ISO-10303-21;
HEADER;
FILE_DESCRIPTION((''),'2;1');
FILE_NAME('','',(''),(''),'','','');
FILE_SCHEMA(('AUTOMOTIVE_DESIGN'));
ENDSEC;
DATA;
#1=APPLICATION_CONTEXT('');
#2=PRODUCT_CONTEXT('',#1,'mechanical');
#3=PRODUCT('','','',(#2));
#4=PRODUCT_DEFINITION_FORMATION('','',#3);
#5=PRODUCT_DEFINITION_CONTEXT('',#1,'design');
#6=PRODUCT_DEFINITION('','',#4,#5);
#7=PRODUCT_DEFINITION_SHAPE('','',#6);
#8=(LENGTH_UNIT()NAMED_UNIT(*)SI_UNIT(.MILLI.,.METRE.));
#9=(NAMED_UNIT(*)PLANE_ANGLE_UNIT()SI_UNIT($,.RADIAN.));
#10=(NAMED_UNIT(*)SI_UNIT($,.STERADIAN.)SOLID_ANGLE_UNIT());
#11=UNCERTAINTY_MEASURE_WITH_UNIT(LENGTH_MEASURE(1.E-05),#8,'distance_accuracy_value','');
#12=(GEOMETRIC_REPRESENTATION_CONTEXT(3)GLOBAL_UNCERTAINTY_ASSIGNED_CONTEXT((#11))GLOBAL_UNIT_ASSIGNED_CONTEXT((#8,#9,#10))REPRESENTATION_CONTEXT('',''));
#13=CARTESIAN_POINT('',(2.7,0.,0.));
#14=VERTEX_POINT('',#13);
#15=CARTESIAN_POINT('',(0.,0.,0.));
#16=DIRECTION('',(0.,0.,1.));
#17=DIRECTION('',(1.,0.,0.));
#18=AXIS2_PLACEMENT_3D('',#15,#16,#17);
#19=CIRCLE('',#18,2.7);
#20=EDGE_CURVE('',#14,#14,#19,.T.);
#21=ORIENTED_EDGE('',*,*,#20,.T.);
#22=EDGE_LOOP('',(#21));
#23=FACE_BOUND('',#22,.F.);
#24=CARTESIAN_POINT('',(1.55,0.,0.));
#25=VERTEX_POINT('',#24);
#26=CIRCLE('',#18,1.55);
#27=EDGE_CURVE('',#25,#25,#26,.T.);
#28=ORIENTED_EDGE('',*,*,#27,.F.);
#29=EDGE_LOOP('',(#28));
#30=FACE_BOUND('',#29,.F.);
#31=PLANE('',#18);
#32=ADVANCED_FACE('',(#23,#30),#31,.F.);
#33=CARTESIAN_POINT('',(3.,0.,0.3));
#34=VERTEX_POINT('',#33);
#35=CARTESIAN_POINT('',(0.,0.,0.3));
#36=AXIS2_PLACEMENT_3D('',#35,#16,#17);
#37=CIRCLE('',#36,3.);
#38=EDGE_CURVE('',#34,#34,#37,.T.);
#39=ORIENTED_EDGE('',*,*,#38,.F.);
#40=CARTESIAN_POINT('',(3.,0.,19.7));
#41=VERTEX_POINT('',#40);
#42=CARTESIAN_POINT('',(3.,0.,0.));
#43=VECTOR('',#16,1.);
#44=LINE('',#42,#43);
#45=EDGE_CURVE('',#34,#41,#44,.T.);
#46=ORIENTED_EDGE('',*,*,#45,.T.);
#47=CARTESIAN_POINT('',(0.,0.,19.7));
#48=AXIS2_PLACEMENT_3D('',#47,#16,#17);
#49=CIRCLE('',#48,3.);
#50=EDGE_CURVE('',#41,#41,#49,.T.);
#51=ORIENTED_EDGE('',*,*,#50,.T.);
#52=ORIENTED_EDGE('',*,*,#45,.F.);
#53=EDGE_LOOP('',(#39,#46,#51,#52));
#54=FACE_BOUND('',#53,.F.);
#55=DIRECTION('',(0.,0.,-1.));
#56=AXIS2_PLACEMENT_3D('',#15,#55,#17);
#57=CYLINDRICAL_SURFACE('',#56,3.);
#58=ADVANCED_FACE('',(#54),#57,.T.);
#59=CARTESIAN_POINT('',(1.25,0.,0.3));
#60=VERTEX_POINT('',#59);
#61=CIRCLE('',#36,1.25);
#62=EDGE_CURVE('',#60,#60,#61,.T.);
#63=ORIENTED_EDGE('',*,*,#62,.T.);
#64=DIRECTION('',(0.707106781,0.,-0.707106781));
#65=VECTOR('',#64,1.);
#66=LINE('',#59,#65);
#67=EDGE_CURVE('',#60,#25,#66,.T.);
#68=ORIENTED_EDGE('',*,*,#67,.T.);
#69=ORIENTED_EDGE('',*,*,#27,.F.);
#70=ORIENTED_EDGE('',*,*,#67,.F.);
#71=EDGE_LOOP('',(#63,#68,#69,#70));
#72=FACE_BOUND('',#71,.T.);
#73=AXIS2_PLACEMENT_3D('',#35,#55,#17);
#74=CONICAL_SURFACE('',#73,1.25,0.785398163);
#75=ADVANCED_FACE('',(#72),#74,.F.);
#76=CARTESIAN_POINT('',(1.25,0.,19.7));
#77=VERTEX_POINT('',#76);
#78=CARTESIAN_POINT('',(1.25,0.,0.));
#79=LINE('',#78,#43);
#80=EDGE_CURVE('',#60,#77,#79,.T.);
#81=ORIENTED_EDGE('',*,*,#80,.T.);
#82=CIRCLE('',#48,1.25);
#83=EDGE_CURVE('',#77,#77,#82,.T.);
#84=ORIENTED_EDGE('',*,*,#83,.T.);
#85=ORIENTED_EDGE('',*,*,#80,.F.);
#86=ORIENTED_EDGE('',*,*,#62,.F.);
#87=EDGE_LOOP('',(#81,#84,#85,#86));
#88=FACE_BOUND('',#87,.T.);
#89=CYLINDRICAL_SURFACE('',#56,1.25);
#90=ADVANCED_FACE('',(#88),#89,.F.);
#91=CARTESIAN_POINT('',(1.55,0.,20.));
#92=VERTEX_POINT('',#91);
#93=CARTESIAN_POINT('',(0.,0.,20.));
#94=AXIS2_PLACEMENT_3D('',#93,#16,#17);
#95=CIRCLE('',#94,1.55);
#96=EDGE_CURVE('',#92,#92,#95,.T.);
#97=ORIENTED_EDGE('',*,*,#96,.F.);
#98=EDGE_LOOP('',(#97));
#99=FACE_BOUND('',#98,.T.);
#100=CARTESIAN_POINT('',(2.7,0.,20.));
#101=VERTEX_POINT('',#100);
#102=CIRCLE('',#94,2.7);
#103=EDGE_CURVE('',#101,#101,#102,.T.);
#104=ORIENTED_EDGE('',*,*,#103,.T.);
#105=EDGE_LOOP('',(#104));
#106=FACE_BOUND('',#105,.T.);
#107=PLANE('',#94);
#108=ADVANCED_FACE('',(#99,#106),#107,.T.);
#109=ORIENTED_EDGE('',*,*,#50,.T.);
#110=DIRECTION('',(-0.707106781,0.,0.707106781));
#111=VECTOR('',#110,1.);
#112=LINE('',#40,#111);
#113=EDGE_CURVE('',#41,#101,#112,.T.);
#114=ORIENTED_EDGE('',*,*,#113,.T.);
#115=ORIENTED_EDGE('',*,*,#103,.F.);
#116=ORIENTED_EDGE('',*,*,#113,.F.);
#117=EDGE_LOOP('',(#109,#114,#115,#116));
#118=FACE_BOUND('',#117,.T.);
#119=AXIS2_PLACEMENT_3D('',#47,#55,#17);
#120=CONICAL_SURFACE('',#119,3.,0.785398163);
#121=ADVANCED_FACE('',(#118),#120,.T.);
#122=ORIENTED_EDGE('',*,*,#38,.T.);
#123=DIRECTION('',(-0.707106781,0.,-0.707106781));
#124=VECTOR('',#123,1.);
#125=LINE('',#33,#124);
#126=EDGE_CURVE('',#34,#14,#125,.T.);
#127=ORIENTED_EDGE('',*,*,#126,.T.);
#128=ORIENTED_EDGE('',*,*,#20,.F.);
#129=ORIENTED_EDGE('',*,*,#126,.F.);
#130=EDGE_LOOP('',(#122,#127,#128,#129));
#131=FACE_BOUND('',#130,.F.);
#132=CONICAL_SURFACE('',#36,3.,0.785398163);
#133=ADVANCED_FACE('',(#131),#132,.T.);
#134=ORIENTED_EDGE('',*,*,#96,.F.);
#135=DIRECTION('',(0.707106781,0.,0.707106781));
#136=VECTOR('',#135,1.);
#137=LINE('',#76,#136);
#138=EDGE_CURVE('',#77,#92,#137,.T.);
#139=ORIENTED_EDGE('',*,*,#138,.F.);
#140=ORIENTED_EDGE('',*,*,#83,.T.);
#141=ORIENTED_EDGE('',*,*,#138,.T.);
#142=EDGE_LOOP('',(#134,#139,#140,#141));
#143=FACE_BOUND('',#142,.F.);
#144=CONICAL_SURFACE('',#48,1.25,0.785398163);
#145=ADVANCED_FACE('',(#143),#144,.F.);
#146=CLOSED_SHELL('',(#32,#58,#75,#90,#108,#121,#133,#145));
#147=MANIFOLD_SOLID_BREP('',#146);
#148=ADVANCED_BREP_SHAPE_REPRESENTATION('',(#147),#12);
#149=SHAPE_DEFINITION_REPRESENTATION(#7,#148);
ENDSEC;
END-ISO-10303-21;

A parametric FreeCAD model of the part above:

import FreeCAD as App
import Part
import Sketcher


def edges_at(feature, points):
    """Names of the edges that pass closest to the given points."""
    edges = feature.Shape.Edges
    near = lambda p: min(range(len(edges)), key=lambda i: edges[i].distToShape(Part.Vertex(*p))[0])
    return sorted({f"Edge{near(p) + 1}" for p in points})

doc = App.newDocument("Part")
body = doc.addObject("PartDesign::Body", "Body")

# Sketch on XY plane
sketch1 = body.newObject("Sketcher::SketchObject", "Sketch")
sketch1.AttachmentSupport = (doc.getObject("XY_Plane"), [""])
sketch1.MapMode = "FlatFace"
sketch1.addGeometry([
    Part.Circle(App.Vector(0, 0, 0), App.Vector(0, 0, 1), 3),
    Part.Circle(App.Vector(0, 0, 0), App.Vector(0, 0, 1), 1.2),
], False)
sketch1.addConstraint([
    Sketcher.Constraint("Coincident", 0, 3, -1, 1),
    Sketcher.Constraint("Coincident", 1, 3, -1, 1),
    Sketcher.Constraint("Diameter", 0, 6.0),
    Sketcher.Constraint("Diameter", 1, 2.5),
])
pad1 = body.newObject("PartDesign::Pad", "Pad")
pad1.Profile = sketch1
pad1.Length = 20
doc.recompute()

chamfer = body.newObject("PartDesign::Chamfer", "Chamfer")
chamfer.Base = (pad1, edges_at(pad1, [
    (-3, 0, 20),
    (-1.25, 0, 20),
    (-3, 0, 0),
    (-1.25, 0, 0),
]))
chamfer.Size = 0.3

doc.recompute()
